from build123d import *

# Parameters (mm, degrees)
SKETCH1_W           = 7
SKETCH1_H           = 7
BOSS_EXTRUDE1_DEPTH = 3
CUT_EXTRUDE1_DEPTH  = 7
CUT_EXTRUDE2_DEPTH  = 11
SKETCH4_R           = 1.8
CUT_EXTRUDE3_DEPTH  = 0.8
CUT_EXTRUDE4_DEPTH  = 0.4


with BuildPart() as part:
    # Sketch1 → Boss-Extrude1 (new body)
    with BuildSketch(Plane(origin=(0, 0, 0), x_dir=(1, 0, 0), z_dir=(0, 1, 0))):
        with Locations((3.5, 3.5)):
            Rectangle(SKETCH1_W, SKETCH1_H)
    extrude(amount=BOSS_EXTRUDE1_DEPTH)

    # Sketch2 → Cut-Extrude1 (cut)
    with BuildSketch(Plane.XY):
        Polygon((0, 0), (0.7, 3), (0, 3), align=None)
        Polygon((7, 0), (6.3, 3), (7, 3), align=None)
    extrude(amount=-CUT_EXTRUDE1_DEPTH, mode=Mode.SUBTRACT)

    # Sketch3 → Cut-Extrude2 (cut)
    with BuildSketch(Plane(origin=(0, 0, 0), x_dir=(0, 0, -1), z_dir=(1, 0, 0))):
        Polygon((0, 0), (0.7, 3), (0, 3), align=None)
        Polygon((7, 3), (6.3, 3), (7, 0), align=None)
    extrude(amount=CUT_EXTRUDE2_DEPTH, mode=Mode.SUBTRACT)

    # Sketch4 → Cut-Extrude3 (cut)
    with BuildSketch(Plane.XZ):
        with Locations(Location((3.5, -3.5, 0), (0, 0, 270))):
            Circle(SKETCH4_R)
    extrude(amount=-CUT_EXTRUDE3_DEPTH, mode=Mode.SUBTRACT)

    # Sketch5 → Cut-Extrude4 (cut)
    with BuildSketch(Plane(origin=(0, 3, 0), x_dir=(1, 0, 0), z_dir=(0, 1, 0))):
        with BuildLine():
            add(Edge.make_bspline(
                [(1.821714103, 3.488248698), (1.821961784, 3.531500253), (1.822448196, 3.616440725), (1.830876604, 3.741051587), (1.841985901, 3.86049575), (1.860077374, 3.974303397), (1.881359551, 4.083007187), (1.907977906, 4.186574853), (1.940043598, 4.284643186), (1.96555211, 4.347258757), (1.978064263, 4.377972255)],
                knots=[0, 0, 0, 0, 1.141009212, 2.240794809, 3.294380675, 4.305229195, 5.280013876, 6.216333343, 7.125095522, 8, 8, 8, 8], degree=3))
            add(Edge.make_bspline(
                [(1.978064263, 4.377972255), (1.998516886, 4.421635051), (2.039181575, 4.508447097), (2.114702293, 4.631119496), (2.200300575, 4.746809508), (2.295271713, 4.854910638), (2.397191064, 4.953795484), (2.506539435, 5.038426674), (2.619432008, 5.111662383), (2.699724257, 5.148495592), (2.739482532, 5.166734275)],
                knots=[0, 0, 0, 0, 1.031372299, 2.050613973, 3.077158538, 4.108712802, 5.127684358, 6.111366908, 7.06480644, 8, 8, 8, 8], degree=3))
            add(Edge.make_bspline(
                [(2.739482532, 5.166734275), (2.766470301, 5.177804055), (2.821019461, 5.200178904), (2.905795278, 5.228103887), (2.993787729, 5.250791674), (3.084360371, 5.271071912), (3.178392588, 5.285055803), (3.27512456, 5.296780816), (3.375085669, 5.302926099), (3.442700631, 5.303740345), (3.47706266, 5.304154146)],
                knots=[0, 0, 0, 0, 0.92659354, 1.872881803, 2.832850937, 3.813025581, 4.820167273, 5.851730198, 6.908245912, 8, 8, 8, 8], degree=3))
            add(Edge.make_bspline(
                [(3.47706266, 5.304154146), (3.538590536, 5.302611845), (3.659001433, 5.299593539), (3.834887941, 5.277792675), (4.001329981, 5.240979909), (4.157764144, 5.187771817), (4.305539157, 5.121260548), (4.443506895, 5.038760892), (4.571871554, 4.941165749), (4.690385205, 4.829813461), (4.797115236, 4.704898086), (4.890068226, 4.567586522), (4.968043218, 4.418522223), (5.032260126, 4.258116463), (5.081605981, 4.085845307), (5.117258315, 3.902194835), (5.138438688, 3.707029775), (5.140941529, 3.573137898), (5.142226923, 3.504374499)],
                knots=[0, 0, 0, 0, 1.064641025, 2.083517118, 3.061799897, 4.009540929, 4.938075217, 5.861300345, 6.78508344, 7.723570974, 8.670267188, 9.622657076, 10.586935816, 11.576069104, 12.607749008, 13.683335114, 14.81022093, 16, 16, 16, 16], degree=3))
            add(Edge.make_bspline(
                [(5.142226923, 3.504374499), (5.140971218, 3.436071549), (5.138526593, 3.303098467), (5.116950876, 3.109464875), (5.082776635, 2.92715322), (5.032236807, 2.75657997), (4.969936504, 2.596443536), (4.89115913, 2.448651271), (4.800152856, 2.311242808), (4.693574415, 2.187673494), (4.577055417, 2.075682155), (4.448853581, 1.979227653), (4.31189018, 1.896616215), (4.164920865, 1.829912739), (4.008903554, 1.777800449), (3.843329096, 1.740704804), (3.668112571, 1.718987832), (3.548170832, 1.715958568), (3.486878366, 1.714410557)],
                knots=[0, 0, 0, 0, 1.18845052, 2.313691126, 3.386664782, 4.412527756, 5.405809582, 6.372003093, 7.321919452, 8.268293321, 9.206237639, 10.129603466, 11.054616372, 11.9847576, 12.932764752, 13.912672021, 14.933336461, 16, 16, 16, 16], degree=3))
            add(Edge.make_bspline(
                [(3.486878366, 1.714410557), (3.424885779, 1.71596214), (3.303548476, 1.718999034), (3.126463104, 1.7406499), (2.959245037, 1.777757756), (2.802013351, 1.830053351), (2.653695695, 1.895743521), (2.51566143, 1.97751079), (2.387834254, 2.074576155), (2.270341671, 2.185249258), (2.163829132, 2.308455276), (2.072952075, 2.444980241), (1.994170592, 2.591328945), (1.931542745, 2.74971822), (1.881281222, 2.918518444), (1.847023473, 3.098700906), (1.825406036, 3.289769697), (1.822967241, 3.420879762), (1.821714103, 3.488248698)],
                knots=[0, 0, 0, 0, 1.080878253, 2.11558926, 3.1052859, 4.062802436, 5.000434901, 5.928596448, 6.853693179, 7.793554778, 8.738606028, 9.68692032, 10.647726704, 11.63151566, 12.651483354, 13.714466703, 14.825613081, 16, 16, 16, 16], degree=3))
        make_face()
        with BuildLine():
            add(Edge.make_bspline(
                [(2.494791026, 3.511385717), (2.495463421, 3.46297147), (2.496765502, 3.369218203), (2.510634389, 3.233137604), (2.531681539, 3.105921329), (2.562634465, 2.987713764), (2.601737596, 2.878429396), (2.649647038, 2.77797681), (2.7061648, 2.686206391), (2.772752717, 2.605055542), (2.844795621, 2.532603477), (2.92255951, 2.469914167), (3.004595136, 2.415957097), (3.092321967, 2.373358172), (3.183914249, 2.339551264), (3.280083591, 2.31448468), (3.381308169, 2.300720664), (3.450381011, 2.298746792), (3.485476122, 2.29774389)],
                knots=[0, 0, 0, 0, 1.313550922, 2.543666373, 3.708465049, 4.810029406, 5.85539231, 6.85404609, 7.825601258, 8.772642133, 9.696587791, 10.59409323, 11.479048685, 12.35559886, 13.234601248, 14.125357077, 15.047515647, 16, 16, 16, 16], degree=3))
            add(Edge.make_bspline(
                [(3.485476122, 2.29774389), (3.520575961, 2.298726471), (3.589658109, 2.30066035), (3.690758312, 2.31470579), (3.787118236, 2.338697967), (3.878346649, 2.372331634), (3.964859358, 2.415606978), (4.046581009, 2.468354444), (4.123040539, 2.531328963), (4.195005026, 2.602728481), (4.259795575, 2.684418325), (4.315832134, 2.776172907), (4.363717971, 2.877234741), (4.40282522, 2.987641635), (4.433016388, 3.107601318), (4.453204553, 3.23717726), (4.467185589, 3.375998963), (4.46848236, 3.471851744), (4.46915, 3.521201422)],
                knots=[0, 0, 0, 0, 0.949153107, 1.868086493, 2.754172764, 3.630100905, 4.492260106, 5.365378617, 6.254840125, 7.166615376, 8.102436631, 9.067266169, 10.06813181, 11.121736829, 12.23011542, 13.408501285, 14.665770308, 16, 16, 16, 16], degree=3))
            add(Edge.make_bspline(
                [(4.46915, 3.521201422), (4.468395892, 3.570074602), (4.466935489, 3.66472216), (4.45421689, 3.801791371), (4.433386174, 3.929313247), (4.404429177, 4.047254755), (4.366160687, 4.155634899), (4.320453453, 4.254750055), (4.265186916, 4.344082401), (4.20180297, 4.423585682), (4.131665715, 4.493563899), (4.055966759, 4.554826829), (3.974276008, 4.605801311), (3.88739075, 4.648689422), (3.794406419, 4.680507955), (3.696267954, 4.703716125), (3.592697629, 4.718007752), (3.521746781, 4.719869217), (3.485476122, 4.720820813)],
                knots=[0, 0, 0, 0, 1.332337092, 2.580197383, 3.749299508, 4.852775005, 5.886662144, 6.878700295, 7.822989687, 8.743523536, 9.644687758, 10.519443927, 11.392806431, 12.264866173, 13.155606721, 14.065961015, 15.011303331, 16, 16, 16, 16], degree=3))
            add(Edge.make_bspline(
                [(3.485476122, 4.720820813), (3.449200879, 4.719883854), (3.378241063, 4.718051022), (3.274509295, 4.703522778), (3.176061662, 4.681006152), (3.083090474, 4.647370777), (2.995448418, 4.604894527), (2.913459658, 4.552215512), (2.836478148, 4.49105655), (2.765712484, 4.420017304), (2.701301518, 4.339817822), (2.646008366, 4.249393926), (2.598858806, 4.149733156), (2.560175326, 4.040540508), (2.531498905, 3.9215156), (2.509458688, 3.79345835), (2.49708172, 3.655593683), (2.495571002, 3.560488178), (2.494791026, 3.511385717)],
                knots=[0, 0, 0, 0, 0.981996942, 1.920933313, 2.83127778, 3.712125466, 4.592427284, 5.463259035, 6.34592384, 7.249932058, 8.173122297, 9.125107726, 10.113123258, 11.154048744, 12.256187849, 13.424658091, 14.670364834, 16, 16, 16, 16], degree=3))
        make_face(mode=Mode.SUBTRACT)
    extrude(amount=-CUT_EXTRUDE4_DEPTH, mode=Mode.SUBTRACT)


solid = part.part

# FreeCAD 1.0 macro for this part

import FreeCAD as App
import Part
import Sketcher
from FreeCAD import Vector

doc = App.newDocument("Part")
body = doc.addObject("PartDesign::Body", "Body")

sketch1 = body.newObject("Sketcher::SketchObject", "Sketch")
sketch1.AttachmentSupport = (doc.getObject("XZ_Plane"), [""])
sketch1.MapMode = "FlatFace"
sketch1.addGeometry([
    Part.LineSegment(Vector(0, -7, 0), Vector(0, 0, 0)),
    Part.LineSegment(Vector(0, 0, 0), Vector(7, 0, 0)),
    Part.LineSegment(Vector(7, 0, 0), Vector(7, -7, 0)),
    Part.LineSegment(Vector(7, -7, 0), Vector(0, -7, 0)),
], False)
sketch1.addConstraint([
    Sketcher.Constraint("Coincident", 0, 2, 1, 1),
    Sketcher.Constraint("Coincident", 1, 2, 2, 1),
    Sketcher.Constraint("Coincident", 2, 2, 3, 1),
    Sketcher.Constraint("Coincident", 3, 2, 0, 1),
    Sketcher.Constraint("Vertical", 0),
    Sketcher.Constraint("Horizontal", 1),
    Sketcher.Constraint("Vertical", 2),
    Sketcher.Constraint("Horizontal", 3),
    Sketcher.Constraint("Coincident", 0, 2, -1, 1),
    Sketcher.Constraint("Equal", 3, 0),
    Sketcher.Constraint("DistanceX", 1, 1, 1, 2, 7.0),
])
pad1 = body.newObject("PartDesign::Pad", "Pad")
pad1.Profile = sketch1
pad1.Length = 3
pad1.Reversed = True

sketch2 = body.newObject("Sketcher::SketchObject", "Sketch001")
sketch2.AttachmentSupport = (doc.getObject("XY_Plane"), [""])
sketch2.MapMode = "FlatFace"
sketch2.addGeometry([
    Part.LineSegment(Vector(0, 0, 0), Vector(0.7, 3, 0)),
    Part.LineSegment(Vector(0.7, 3, 0), Vector(0, 3, 0)),
    Part.LineSegment(Vector(0, 3, 0), Vector(0, 0, 0)),
    Part.LineSegment(Vector(6.3, 3, 0), Vector(7, 0, 0)),
    Part.LineSegment(Vector(7, 0, 0), Vector(7, 3, 0)),
    Part.LineSegment(Vector(7, 3, 0), Vector(6.3, 3, 0)),
], False)
sketch2.addConstraint([
    Sketcher.Constraint("Coincident", 0, 2, 1, 1),
    Sketcher.Constraint("Coincident", 1, 2, 2, 1),
    Sketcher.Constraint("Coincident", 2, 2, 0, 1),
    Sketcher.Constraint("Coincident", 3, 2, 4, 1),
    Sketcher.Constraint("Coincident", 4, 2, 5, 1),
    Sketcher.Constraint("Coincident", 5, 2, 3, 1),
    Sketcher.Constraint("Horizontal", 1),
    Sketcher.Constraint("Vertical", 2),
    Sketcher.Constraint("Vertical", 4),
    Sketcher.Constraint("Horizontal", 5),
    Sketcher.Constraint("Coincident", 2, 2, -1, 1),
    Sketcher.Constraint("PointOnObject", 3, 2, -1),
    Sketcher.Constraint("Horizontal", 1, 2, 4, 2),
    Sketcher.Constraint("Equal", 1, 5),
    Sketcher.Constraint("DistanceY", 2, 2, 2, 1, 3.0),
    Sketcher.Constraint("DistanceX", 1, 2, 1, 1, 0.7),
    Sketcher.Constraint("DistanceX", -1, 1, 3, 2, 7.0),
])
pocket1 = body.newObject("PartDesign::Pocket", "Pocket")
pocket1.Profile = sketch2
pocket1.Length = 7

sketch3 = body.newObject("Sketcher::SketchObject", "Sketch002")
sketch3.AttachmentSupport = (doc.getObject("YZ_Plane"), [""])
sketch3.MapMode = "FlatFace"
sketch3.addGeometry([
    Part.LineSegment(Vector(0, 0, 0), Vector(3, -0.7, 0)),
    Part.LineSegment(Vector(3, -0.7, 0), Vector(3, 0, 0)),
    Part.LineSegment(Vector(3, 0, 0), Vector(0, 0, 0)),
    Part.LineSegment(Vector(3, -7, 0), Vector(3, -6.3, 0)),
    Part.LineSegment(Vector(3, -6.3, 0), Vector(0, -7, 0)),
    Part.LineSegment(Vector(0, -7, 0), Vector(3, -7, 0)),
], False)
sketch3.addConstraint([
    Sketcher.Constraint("Coincident", 0, 2, 1, 1),
    Sketcher.Constraint("Coincident", 1, 2, 2, 1),
    Sketcher.Constraint("Coincident", 2, 2, 0, 1),
    Sketcher.Constraint("Coincident", 3, 2, 4, 1),
    Sketcher.Constraint("Coincident", 4, 2, 5, 1),
    Sketcher.Constraint("Coincident", 5, 2, 3, 1),
    Sketcher.Constraint("Vertical", 1),
    Sketcher.Constraint("Horizontal", 2),
    Sketcher.Constraint("Vertical", 3),
    Sketcher.Constraint("Horizontal", 5),
    Sketcher.Constraint("Coincident", 2, 2, -1, 1),
    Sketcher.Constraint("PointOnObject", 4, 2, -2),
    Sketcher.Constraint("Vertical", 1, 2, 3, 2),
    Sketcher.Constraint("Equal", 1, 3),
    Sketcher.Constraint("DistanceX", 2, 2, 2, 1, 3.0),
    Sketcher.Constraint("DistanceY", 1, 1, 1, 2, 0.7),
    Sketcher.Constraint("DistanceY", 4, 2, -1, 1, 7.0),
])
pocket2 = body.newObject("PartDesign::Pocket", "Pocket001")
pocket2.Profile = sketch3
pocket2.Length = 11
pocket2.Reversed = True

sketch4 = body.newObject("Sketcher::SketchObject", "Sketch003")
sketch4.AttachmentSupport = (doc.getObject("XZ_Plane"), [""])
sketch4.MapMode = "FlatFace"
sketch4.addGeometry(Part.Circle(Vector(3.5, -3.5, 0), Vector(0, 0, 1), 1.8), False)
sketch4.addConstraint([
    Sketcher.Constraint("Diameter", 0, 3.6),
    Sketcher.Constraint("DistanceX", -1, 1, 0, 3, 3.5),
    Sketcher.Constraint("DistanceY", 0, 3, -1, 1, 3.5),
])
pocket3 = body.newObject("PartDesign::Pocket", "Pocket002")
pocket3.Profile = sketch4
pocket3.Length = 0.8

sketch5 = body.newObject("Sketcher::SketchObject", "Sketch004")
sketch5.AttachmentSupport = (doc.getObject("XZ_Plane"), [""])
sketch5.MapMode = "FlatFace"
sketch5.AttachmentOffset = App.Placement(Vector(0, 0, -3), App.Rotation())
sketch5.addGeometry([
    Part.BSplineCurve([Vector(1.821714, -3.488249, 0), Vector(1.821962, -3.5315, 0), Vector(1.822448, -3.616441, 0), Vector(1.830877, -3.741052, 0), Vector(1.841986, -3.860496, 0), Vector(1.860077, -3.974303, 0), Vector(1.88136, -4.083007, 0), Vector(1.907978, -4.186575, 0), Vector(1.940044, -4.284643, 0), Vector(1.965552, -4.347259, 0), Vector(1.978064, -4.377972, 0)], [4, 1, 1, 1, 1, 1, 1, 1, 4], [0, 1.141009212, 2.240794809, 3.294380675, 4.305229195, 5.280013876, 6.216333343, 7.125095522, 8], False, 3, [1, 1, 1, 1, 1, 1, 1, 1, 1, 1, 1], False),
    Part.BSplineCurve([Vector(3.486878, -1.714411, 0), Vector(3.424886, -1.715962, 0), Vector(3.303548, -1.718999, 0), Vector(3.126463, -1.74065, 0), Vector(2.959245, -1.777758, 0), Vector(2.802013, -1.830053, 0), Vector(2.653696, -1.895744, 0), Vector(2.515661, -1.977511, 0), Vector(2.387834, -2.074576, 0), Vector(2.270342, -2.185249, 0), Vector(2.163829, -2.308455, 0), Vector(2.072952, -2.44498, 0), Vector(1.994171, -2.591329, 0), Vector(1.931543, -2.749718, 0), Vector(1.881281, -2.918518, 0), Vector(1.847023, -3.098701, 0), Vector(1.825406, -3.28977, 0), Vector(1.822967, -3.42088, 0), Vector(1.821714, -3.488249, 0)], [4, 1, 1, 1, 1, 1, 1, 1, 1, 1, 1, 1, 1, 1, 1, 1, 4], [0, 1.080878253, 2.11558926, 3.1052859, 4.062802436, 5.000434901, 5.928596448, 6.853693179, 7.793554778, 8.738606028, 9.68692032, 10.647726704, 11.63151566, 12.651483354, 13.714466703, 14.825613081, 16], False, 3, [1, 1, 1, 1, 1, 1, 1, 1, 1, 1, 1, 1, 1, 1, 1, 1, 1, 1, 1], False),
    Part.BSplineCurve([Vector(5.142227, -3.504374, 0), Vector(5.140971, -3.436072, 0), Vector(5.138527, -3.303098, 0), Vector(5.116951, -3.109465, 0), Vector(5.082777, -2.927153, 0), Vector(5.032237, -2.75658, 0), Vector(4.969937, -2.596444, 0), Vector(4.891159, -2.448651, 0), Vector(4.800153, -2.311243, 0), Vector(4.693574, -2.187673, 0), Vector(4.577055, -2.075682, 0), Vector(4.448854, -1.979228, 0), Vector(4.31189, -1.896616, 0), Vector(4.164921, -1.829913, 0), Vector(4.008904, -1.7778, 0), Vector(3.843329, -1.740705, 0), Vector(3.668113, -1.718988, 0), Vector(3.548171, -1.715959, 0), Vector(3.486878, -1.714411, 0)], [4, 1, 1, 1, 1, 1, 1, 1, 1, 1, 1, 1, 1, 1, 1, 1, 4], [0, 1.18845052, 2.313691126, 3.386664782, 4.412527756, 5.405809582, 6.372003093, 7.321919452, 8.268293321, 9.206237639, 10.129603466, 11.054616372, 11.9847576, 12.932764752, 13.912672021, 14.933336461, 16], False, 3, [1, 1, 1, 1, 1, 1, 1, 1, 1, 1, 1, 1, 1, 1, 1, 1, 1, 1, 1], False),
    Part.BSplineCurve([Vector(3.477063, -5.304154, 0), Vector(3.538591, -5.302612, 0), Vector(3.659001, -5.299594, 0), Vector(3.834888, -5.277793, 0), Vector(4.00133, -5.24098, 0), Vector(4.157764, -5.187772, 0), Vector(4.305539, -5.121261, 0), Vector(4.443507, -5.038761, 0), Vector(4.571872, -4.941166, 0), Vector(4.690385, -4.829813, 0), Vector(4.797115, -4.704898, 0), Vector(4.890068, -4.567587, 0), Vector(4.968043, -4.418522, 0), Vector(5.03226, -4.258116, 0), Vector(5.081606, -4.085845, 0), Vector(5.117258, -3.902195, 0), Vector(5.138439, -3.70703, 0), Vector(5.140942, -3.573138, 0), Vector(5.142227, -3.504374, 0)], [4, 1, 1, 1, 1, 1, 1, 1, 1, 1, 1, 1, 1, 1, 1, 1, 4], [0, 1.064641025, 2.083517118, 3.061799897, 4.009540929, 4.938075217, 5.861300345, 6.78508344, 7.723570974, 8.670267188, 9.622657076, 10.586935816, 11.576069104, 12.607749008, 13.683335114, 14.81022093, 16], False, 3, [1, 1, 1, 1, 1, 1, 1, 1, 1, 1, 1, 1, 1, 1, 1, 1, 1, 1, 1], False),
    Part.BSplineCurve([Vector(2.739483, -5.166734, 0), Vector(2.76647, -5.177804, 0), Vector(2.821019, -5.200179, 0), Vector(2.905795, -5.228104, 0), Vector(2.993788, -5.250792, 0), Vector(3.08436, -5.271072, 0), Vector(3.178393, -5.285056, 0), Vector(3.275125, -5.296781, 0), Vector(3.375086, -5.302926, 0), Vector(3.442701, -5.30374, 0), Vector(3.477063, -5.304154, 0)], [4, 1, 1, 1, 1, 1, 1, 1, 4], [0, 0.92659354, 1.872881803, 2.832850937, 3.813025581, 4.820167273, 5.851730198, 6.908245912, 8], False, 3, [1, 1, 1, 1, 1, 1, 1, 1, 1, 1, 1], False),
    Part.BSplineCurve([Vector(1.978064, -4.377972, 0), Vector(1.998517, -4.421635, 0), Vector(2.039182, -4.508447, 0), Vector(2.114702, -4.631119, 0), Vector(2.200301, -4.74681, 0), Vector(2.295272, -4.854911, 0), Vector(2.397191, -4.953795, 0), Vector(2.506539, -5.038427, 0), Vector(2.619432, -5.111662, 0), Vector(2.699724, -5.148496, 0), Vector(2.739483, -5.166734, 0)], [4, 1, 1, 1, 1, 1, 1, 1, 4], [0, 1.031372299, 2.050613973, 3.077158538, 4.108712802, 5.127684358, 6.111366908, 7.06480644, 8], False, 3, [1, 1, 1, 1, 1, 1, 1, 1, 1, 1, 1], False),
    Part.BSplineCurve([Vector(3.485476, -4.720821, 0), Vector(3.449201, -4.719884, 0), Vector(3.378241, -4.718051, 0), Vector(3.274509, -4.703523, 0), Vector(3.176062, -4.681006, 0), Vector(3.08309, -4.647371, 0), Vector(2.995448, -4.604895, 0), Vector(2.91346, -4.552216, 0), Vector(2.836478, -4.491057, 0), Vector(2.765712, -4.420017, 0), Vector(2.701302, -4.339818, 0), Vector(2.646008, -4.249394, 0), Vector(2.598859, -4.149733, 0), Vector(2.560175, -4.040541, 0), Vector(2.531499, -3.921516, 0), Vector(2.509459, -3.793458, 0), Vector(2.497082, -3.655594, 0), Vector(2.495571, -3.560488, 0), Vector(2.494791, -3.511386, 0)], [4, 1, 1, 1, 1, 1, 1, 1, 1, 1, 1, 1, 1, 1, 1, 1, 4], [0, 0.981996942, 1.920933313, 2.83127778, 3.712125466, 4.592427284, 5.463259035, 6.34592384, 7.249932058, 8.173122297, 9.125107726, 10.113123258, 11.154048744, 12.256187849, 13.424658091, 14.670364834, 16], False, 3, [1, 1, 1, 1, 1, 1, 1, 1, 1, 1, 1, 1, 1, 1, 1, 1, 1, 1, 1], False),
    Part.BSplineCurve([Vector(4.46915, -3.521201, 0), Vector(4.468396, -3.570075, 0), Vector(4.466935, -3.664722, 0), Vector(4.454217, -3.801791, 0), Vector(4.433386, -3.929313, 0), Vector(4.404429, -4.047255, 0), Vector(4.366161, -4.155635, 0), Vector(4.320453, -4.25475, 0), Vector(4.265187, -4.344082, 0), Vector(4.201803, -4.423586, 0), Vector(4.131666, -4.493564, 0), Vector(4.055967, -4.554827, 0), Vector(3.974276, -4.605801, 0), Vector(3.887391, -4.648689, 0), Vector(3.794406, -4.680508, 0), Vector(3.696268, -4.703716, 0), Vector(3.592698, -4.718008, 0), Vector(3.521747, -4.719869, 0), Vector(3.485476, -4.720821, 0)], [4, 1, 1, 1, 1, 1, 1, 1, 1, 1, 1, 1, 1, 1, 1, 1, 4], [0, 1.332337092, 2.580197383, 3.749299508, 4.852775005, 5.886662144, 6.878700295, 7.822989687, 8.743523536, 9.644687758, 10.519443927, 11.392806431, 12.264866173, 13.155606721, 14.065961015, 15.011303331, 16], False, 3, [1, 1, 1, 1, 1, 1, 1, 1, 1, 1, 1, 1, 1, 1, 1, 1, 1, 1, 1], False),
    Part.BSplineCurve([Vector(3.485476, -2.297744, 0), Vector(3.520576, -2.298726, 0), Vector(3.589658, -2.30066, 0), Vector(3.690758, -2.314706, 0), Vector(3.787118, -2.338698, 0), Vector(3.878347, -2.372332, 0), Vector(3.964859, -2.415607, 0), Vector(4.046581, -2.468354, 0), Vector(4.123041, -2.531329, 0), Vector(4.195005, -2.602728, 0), Vector(4.259796, -2.684418, 0), Vector(4.315832, -2.776173, 0), Vector(4.363718, -2.877235, 0), Vector(4.402825, -2.987642, 0), Vector(4.433016, -3.107601, 0), Vector(4.453205, -3.237177, 0), Vector(4.467186, -3.375999, 0), Vector(4.468482, -3.471852, 0), Vector(4.46915, -3.521201, 0)], [4, 1, 1, 1, 1, 1, 1, 1, 1, 1, 1, 1, 1, 1, 1, 1, 4], [0, 0.949153107, 1.868086493, 2.754172764, 3.630100905, 4.492260106, 5.365378617, 6.254840125, 7.166615376, 8.102436631, 9.067266169, 10.06813181, 11.121736829, 12.23011542, 13.408501285, 14.665770308, 16], False, 3, [1, 1, 1, 1, 1, 1, 1, 1, 1, 1, 1, 1, 1, 1, 1, 1, 1, 1, 1], False),
    Part.BSplineCurve([Vector(2.494791, -3.511386, 0), Vector(2.495463, -3.462971, 0), Vector(2.496766, -3.369218, 0), Vector(2.510634, -3.233138, 0), Vector(2.531682, -3.105921, 0), Vector(2.562634, -2.987714, 0), Vector(2.601738, -2.878429, 0), Vector(2.649647, -2.777977, 0), Vector(2.706165, -2.686206, 0), Vector(2.772753, -2.605056, 0), Vector(2.844796, -2.532603, 0), Vector(2.92256, -2.469914, 0), Vector(3.004595, -2.415957, 0), Vector(3.092322, -2.373358, 0), Vector(3.183914, -2.339551, 0), Vector(3.280084, -2.314485, 0), Vector(3.381308, -2.300721, 0), Vector(3.450381, -2.298747, 0), Vector(3.485476, -2.297744, 0)], [4, 1, 1, 1, 1, 1, 1, 1, 1, 1, 1, 1, 1, 1, 1, 1, 4], [0, 1.313550922, 2.543666373, 3.708465049, 4.810029406, 5.85539231, 6.85404609, 7.825601258, 8.772642133, 9.696587791, 10.59409323, 11.479048685, 12.35559886, 13.234601248, 14.125357077, 15.047515647, 16], False, 3, [1, 1, 1, 1, 1, 1, 1, 1, 1, 1, 1, 1, 1, 1, 1, 1, 1, 1, 1], False),
], False)
sketch5.addConstraint([
    Sketcher.Constraint("Block", 0),
    Sketcher.Constraint("Block", 1),
    Sketcher.Constraint("Block", 2),
    Sketcher.Constraint("Block", 3),
    Sketcher.Constraint("Block", 4),
    Sketcher.Constraint("Block", 5),
    Sketcher.Constraint("Block", 6),
    Sketcher.Constraint("Block", 7),
    Sketcher.Constraint("Block", 8),
    Sketcher.Constraint("Block", 9),
])
pocket4 = body.newObject("PartDesign::Pocket", "Pocket003")
pocket4.Profile = sketch5
pocket4.Length = 0.4
pocket4.Reversed = True

doc.recompute()
